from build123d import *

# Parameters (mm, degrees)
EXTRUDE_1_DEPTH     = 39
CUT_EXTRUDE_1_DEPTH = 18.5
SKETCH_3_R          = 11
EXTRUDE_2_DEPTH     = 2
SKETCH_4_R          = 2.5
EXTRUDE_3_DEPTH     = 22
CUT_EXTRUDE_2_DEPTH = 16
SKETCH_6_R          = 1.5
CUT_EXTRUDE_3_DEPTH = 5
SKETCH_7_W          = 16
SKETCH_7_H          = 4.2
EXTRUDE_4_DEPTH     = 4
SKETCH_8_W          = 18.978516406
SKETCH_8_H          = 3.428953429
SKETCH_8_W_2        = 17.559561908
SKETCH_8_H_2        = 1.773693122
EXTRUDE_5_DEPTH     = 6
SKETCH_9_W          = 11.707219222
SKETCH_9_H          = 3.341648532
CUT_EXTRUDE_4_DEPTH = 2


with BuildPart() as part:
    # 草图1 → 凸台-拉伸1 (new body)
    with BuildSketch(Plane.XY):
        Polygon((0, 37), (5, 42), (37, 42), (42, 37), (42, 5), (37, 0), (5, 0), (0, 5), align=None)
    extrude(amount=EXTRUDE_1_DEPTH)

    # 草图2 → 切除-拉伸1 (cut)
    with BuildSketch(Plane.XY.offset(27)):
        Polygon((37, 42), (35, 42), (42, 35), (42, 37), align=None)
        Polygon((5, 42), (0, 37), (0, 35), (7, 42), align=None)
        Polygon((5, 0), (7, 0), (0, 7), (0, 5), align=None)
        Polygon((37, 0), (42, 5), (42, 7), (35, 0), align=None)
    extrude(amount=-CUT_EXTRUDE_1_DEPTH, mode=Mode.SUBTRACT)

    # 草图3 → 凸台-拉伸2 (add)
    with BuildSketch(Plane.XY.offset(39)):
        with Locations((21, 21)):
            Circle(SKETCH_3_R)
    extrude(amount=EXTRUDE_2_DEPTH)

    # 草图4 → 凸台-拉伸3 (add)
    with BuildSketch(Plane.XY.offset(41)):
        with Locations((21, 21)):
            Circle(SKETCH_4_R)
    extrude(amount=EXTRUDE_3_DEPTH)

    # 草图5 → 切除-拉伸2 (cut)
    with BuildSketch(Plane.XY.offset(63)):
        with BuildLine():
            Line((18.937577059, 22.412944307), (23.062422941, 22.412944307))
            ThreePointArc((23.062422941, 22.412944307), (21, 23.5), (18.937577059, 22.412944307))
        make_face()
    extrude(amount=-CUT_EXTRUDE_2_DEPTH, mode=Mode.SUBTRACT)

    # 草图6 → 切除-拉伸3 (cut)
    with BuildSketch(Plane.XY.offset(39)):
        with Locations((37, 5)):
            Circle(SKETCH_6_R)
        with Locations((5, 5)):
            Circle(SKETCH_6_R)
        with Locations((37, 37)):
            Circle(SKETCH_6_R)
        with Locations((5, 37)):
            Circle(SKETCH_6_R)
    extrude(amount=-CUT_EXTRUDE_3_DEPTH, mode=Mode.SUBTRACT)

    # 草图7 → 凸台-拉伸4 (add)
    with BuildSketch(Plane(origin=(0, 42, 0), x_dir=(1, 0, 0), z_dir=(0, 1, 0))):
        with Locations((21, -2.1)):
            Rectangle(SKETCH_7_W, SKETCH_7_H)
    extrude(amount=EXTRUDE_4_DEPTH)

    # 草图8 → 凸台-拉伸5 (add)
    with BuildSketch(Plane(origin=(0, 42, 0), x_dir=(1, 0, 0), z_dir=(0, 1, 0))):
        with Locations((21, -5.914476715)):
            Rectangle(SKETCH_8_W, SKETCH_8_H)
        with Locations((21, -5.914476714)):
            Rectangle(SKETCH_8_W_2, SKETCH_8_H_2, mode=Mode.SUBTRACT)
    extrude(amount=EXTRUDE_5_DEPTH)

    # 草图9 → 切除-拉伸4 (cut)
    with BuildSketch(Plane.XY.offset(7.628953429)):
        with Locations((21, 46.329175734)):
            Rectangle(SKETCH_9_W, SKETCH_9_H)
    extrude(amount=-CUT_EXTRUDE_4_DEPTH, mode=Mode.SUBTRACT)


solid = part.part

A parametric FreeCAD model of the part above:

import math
import FreeCAD as App
import Part
import Sketcher

V = App.Vector
Q = App.Units.Quantity

doc = App.newDocument("Part")
params = doc.addObject("Spreadsheet::Sheet", "Params")
for row, (alias, value) in enumerate([
    ("sketch1_width", "32 mm"),
    ("pad1_length", "39 mm"),
    ("sketch2_width", "2 mm"),
    ("pocket1_length", "18.5 mm"),
    ("sketch3_diameter", "22 mm"),
    ("pad2_length", "2 mm"),
    ("sketch4_diameter", "5 mm"),
    ("pad3_length", "22 mm"),
    ("sketch5_radius", "2.5 mm"),
    ("pocket2_length", "16 mm"),
    ("sketch6_diameter", "3 mm"),
    ("pocket3_length", "5 mm"),
    ("sketch7_width", "16 mm"),
    ("sketch7_height", "4.2 mm"),
    ("pad4_length", "4 mm"),
    ("pad5_length", "6 mm"),
    ("pocket4_length", "2 mm"),
], start=1):
    params.set(f"A{row}", alias)
    params.set(f"B{row}", "=" + value)
    params.setAlias(f"B{row}", alias)

body = doc.addObject("PartDesign::Body", "Body")

sketch1 = body.newObject("Sketcher::SketchObject", "Sketch")
sketch1.AttachmentSupport = (doc.getObject("XY_Plane"), [""])
sketch1.MapMode = "FlatFace"
sketch1.addGeometry([
    Part.LineSegment(V(5, 42, 0), V(0, 37, 0)),
    Part.LineSegment(V(0, 37, 0), V(0, 5, 0)),
    Part.LineSegment(V(0, 5, 0), V(5, 0, 0)),
    Part.LineSegment(V(5, 0, 0), V(37, 0, 0)),
    Part.LineSegment(V(37, 0, 0), V(42, 5, 0)),
    Part.LineSegment(V(42, 5, 0), V(42, 37, 0)),
    Part.LineSegment(V(42, 37, 0), V(37, 42, 0)),
    Part.LineSegment(V(37, 42, 0), V(5, 42, 0)),
], False)
sketch1.addConstraint([
    Sketcher.Constraint("Coincident", 0, 2, 1, 1),
    Sketcher.Constraint("Coincident", 1, 2, 2, 1),
    Sketcher.Constraint("Coincident", 2, 2, 3, 1),
    Sketcher.Constraint("Coincident", 3, 2, 4, 1),
    Sketcher.Constraint("Coincident", 4, 2, 5, 1),
    Sketcher.Constraint("Coincident", 5, 2, 6, 1),
    Sketcher.Constraint("Coincident", 6, 2, 7, 1),
    Sketcher.Constraint("Coincident", 7, 2, 0, 1),
    Sketcher.Constraint("Vertical", 1),
    Sketcher.Constraint("Horizontal", 3),
    Sketcher.Constraint("Vertical", 5),
    Sketcher.Constraint("Horizontal", 7),
    Sketcher.Constraint("PointOnObject", 0, 2, -2),
    Sketcher.Constraint("PointOnObject", 2, 2, -1),
    Sketcher.Constraint("Perpendicular", 0, 2),
    Sketcher.Constraint("Perpendicular", 2, 4),
    Sketcher.Constraint("Perpendicular", 4, 6),
    Sketcher.Constraint("Horizontal", 1, 2, 4, 2),
    Sketcher.Constraint("Horizontal", 0, 2, 5, 2),
    Sketcher.Constraint("Vertical", 3, 2, 6, 2),
    Sketcher.Constraint("Vertical", 2, 2, 7, 2),
    Sketcher.Constraint("Equal", 7, 1),
    Sketcher.Constraint("DistanceX", 3, 1, 3, 2, Q("32 mm")),
    Sketcher.Constraint("DistanceY", -1, 1, 0, 2, Q("37 mm")),
])
sketch1.setExpression("Constraints[22]", "Params.sketch1_width")
pad1 = body.newObject("PartDesign::Pad", "Pad")
pad1.Profile = sketch1
pad1.setExpression("Length", "Params.pad1_length")

sketch2 = body.newObject("Sketcher::SketchObject", "Sketch001")
sketch2.AttachmentSupport = (doc.getObject("XY_Plane"), [""])
sketch2.MapMode = "FlatFace"
sketch2.AttachmentOffset = App.Placement(V(0, 0, 27), App.Rotation())
sketch2.addGeometry([
    Part.LineSegment(V(37, 42, 0), V(35, 42, 0)),
    Part.LineSegment(V(35, 42, 0), V(42, 35, 0)),
    Part.LineSegment(V(42, 35, 0), V(42, 37, 0)),
    Part.LineSegment(V(42, 37, 0), V(37, 42, 0)),
    Part.LineSegment(V(5, 42, 0), V(0, 37, 0)),
    Part.LineSegment(V(0, 37, 0), V(0, 35, 0)),
    Part.LineSegment(V(0, 35, 0), V(7, 42, 0)),
    Part.LineSegment(V(7, 42, 0), V(5, 42, 0)),
    Part.LineSegment(V(5, 0, 0), V(7, 0, 0)),
    Part.LineSegment(V(7, 0, 0), V(0, 7, 0)),
    Part.LineSegment(V(0, 7, 0), V(0, 5, 0)),
    Part.LineSegment(V(0, 5, 0), V(5, 0, 0)),
    Part.LineSegment(V(37, 0, 0), V(42, 5, 0)),
    Part.LineSegment(V(42, 5, 0), V(42, 7, 0)),
    Part.LineSegment(V(42, 7, 0), V(35, 0, 0)),
    Part.LineSegment(V(35, 0, 0), V(37, 0, 0)),
], False)
sketch2.addConstraint([
    Sketcher.Constraint("Coincident", 0, 2, 1, 1),
    Sketcher.Constraint("Coincident", 1, 2, 2, 1),
    Sketcher.Constraint("Coincident", 2, 2, 3, 1),
    Sketcher.Constraint("Coincident", 3, 2, 0, 1),
    Sketcher.Constraint("Coincident", 4, 2, 5, 1),
    Sketcher.Constraint("Coincident", 5, 2, 6, 1),
    Sketcher.Constraint("Coincident", 6, 2, 7, 1),
    Sketcher.Constraint("Coincident", 7, 2, 4, 1),
    Sketcher.Constraint("Coincident", 8, 2, 9, 1),
    Sketcher.Constraint("Coincident", 9, 2, 10, 1),
    Sketcher.Constraint("Coincident", 10, 2, 11, 1),
    Sketcher.Constraint("Coincident", 11, 2, 8, 1),
    Sketcher.Constraint("Coincident", 12, 2, 13, 1),
    Sketcher.Constraint("Coincident", 13, 2, 14, 1),
    Sketcher.Constraint("Coincident", 14, 2, 15, 1),
    Sketcher.Constraint("Coincident", 15, 2, 12, 1),
    Sketcher.Constraint("Horizontal", 0),
    Sketcher.Constraint("Vertical", 2),
    Sketcher.Constraint("Vertical", 5),
    Sketcher.Constraint("Horizontal", 7),
    Sketcher.Constraint("Horizontal", 8),
    Sketcher.Constraint("Vertical", 10),
    Sketcher.Constraint("Vertical", 13),
    Sketcher.Constraint("Horizontal", 15),
    Sketcher.Constraint("PointOnObject", 4, 2, -2),
    Sketcher.Constraint("PointOnObject", 8, 2, -1),
    Sketcher.Constraint("PointOnObject", 9, 2, -2),
    Sketcher.Constraint("PointOnObject", 14, 2, -1),
    Sketcher.Constraint("Parallel", 1, 3),
    Sketcher.Constraint("Perpendicular", 3, 4),
    Sketcher.Constraint("Parallel", 4, 6),
    Sketcher.Constraint("Perpendicular", 6, 9),
    Sketcher.Constraint("Parallel", 9, 11),
    Sketcher.Constraint("Perpendicular", 11, 12),
    Sketcher.Constraint("Parallel", 12, 14),
    Sketcher.Constraint("Horizontal", 2, 2, 4, 2),
    Sketcher.Constraint("Horizontal", 1, 2, 5, 2),
    Sketcher.Constraint("Horizontal", 3, 2, 6, 2),
    Sketcher.Constraint("Horizontal", 10, 2, 12, 2),
    Sketcher.Constraint("Horizontal", 9, 2, 13, 2),
    Sketcher.Constraint("Vertical", 6, 2, 8, 2),
    Sketcher.Constraint("Vertical", 7, 2, 11, 2),
    Sketcher.Constraint("Vertical", 2, 2, 12, 2),
    Sketcher.Constraint("Vertical", 0, 2, 14, 2),
    Sketcher.Constraint("DistanceX", 0, 2, 0, 1, Q("2 mm")),
    Sketcher.Constraint("DistanceX", -1, 1, 0, 2, Q("35 mm")),
    Sketcher.Constraint("DistanceY", -1, 1, 0, 2, Q("42 mm")),
    Sketcher.Constraint("DistanceX", -1, 1, 1, 2, Q("42 mm")),
])
sketch2.setExpression("Constraints[44]", "Params.sketch2_width")
pocket1 = body.newObject("PartDesign::Pocket", "Pocket")
pocket1.Profile = sketch2
pocket1.setExpression("Length", "Params.pocket1_length")

sketch3 = body.newObject("Sketcher::SketchObject", "Sketch002")
sketch3.AttachmentSupport = (doc.getObject("XY_Plane"), [""])
sketch3.MapMode = "FlatFace"
sketch3.AttachmentOffset = App.Placement(V(0, 0, 39), App.Rotation())
sketch3.addGeometry(Part.Circle(V(21, 21, 0), V(0, 0, 1), 11), False)
sketch3.addConstraint([
    Sketcher.Constraint("Diameter", 0, Q("22 mm")),
    Sketcher.Constraint("DistanceX", -1, 1, 0, 3, Q("21 mm")),
    Sketcher.Constraint("DistanceY", -1, 1, 0, 3, Q("21 mm")),
])
sketch3.setExpression("Constraints[0]", "Params.sketch3_diameter")
pad2 = body.newObject("PartDesign::Pad", "Pad001")
pad2.Profile = sketch3
pad2.setExpression("Length", "Params.pad2_length")

sketch4 = body.newObject("Sketcher::SketchObject", "Sketch003")
sketch4.AttachmentSupport = (doc.getObject("XY_Plane"), [""])
sketch4.MapMode = "FlatFace"
sketch4.AttachmentOffset = App.Placement(V(0, 0, 41), App.Rotation())
sketch4.addGeometry(Part.Circle(V(21, 21, 0), V(0, 0, 1), 2.5), False)
sketch4.addConstraint([
    Sketcher.Constraint("Diameter", 0, Q("5 mm")),
    Sketcher.Constraint("DistanceX", -1, 1, 0, 3, Q("21 mm")),
    Sketcher.Constraint("DistanceY", -1, 1, 0, 3, Q("21 mm")),
])
sketch4.setExpression("Constraints[0]", "Params.sketch4_diameter")
pad3 = body.newObject("PartDesign::Pad", "Pad002")
pad3.Profile = sketch4
pad3.setExpression("Length", "Params.pad3_length")

sketch5 = body.newObject("Sketcher::SketchObject", "Sketch004")
sketch5.AttachmentSupport = (doc.getObject("XY_Plane"), [""])
sketch5.MapMode = "FlatFace"
sketch5.AttachmentOffset = App.Placement(V(0, 0, 63), App.Rotation())
sketch5.addGeometry([
    Part.LineSegment(V(18.9, 22.4, 0), V(23.1, 22.4, 0)),
    Part.ArcOfCircle(Part.Circle(V(21, 21, 0), V(0, 0, 1), 2.5), math.radians(34), math.radians(146)),
], False)
sketch5.addConstraint([
    Sketcher.Constraint("Coincident", 0, 1, 1, 2),
    Sketcher.Constraint("Coincident", 1, 1, 0, 2),
    Sketcher.Constraint("Horizontal", 0),
    Sketcher.Constraint("Radius", 1, Q("2.5 mm")),
    Sketcher.Constraint("DistanceX", -1, 1, 1, 3, Q("21 mm")),
    Sketcher.Constraint("DistanceY", -1, 1, 1, 3, Q("21 mm")),
    Sketcher.Constraint("DistanceX", 0, 1, 0, 2, Q("4.124846 mm")),
])
sketch5.setExpression("Constraints[3]", "Params.sketch5_radius")
pocket2 = body.newObject("PartDesign::Pocket", "Pocket001")
pocket2.Profile = sketch5
pocket2.setExpression("Length", "Params.pocket2_length")

sketch6 = body.newObject("Sketcher::SketchObject", "Sketch005")
sketch6.AttachmentSupport = (doc.getObject("XY_Plane"), [""])
sketch6.MapMode = "FlatFace"
sketch6.AttachmentOffset = App.Placement(V(0, 0, 39), App.Rotation())
sketch6.addGeometry([
    Part.Circle(V(37, 5, 0), V(0, 0, 1), 1.5),
    Part.Circle(V(5, 5, 0), V(0, 0, 1), 1.5),
    Part.Circle(V(37, 37, 0), V(0, 0, 1), 1.5),
    Part.Circle(V(5, 37, 0), V(0, 0, 1), 1.5),
], False)
sketch6.addConstraint([
    Sketcher.Constraint("Equal", 0, 1),
    Sketcher.Constraint("Equal", 1, 2),
    Sketcher.Constraint("Equal", 2, 3),
    Sketcher.Constraint("Horizontal", 0, 3, 1, 3),
    Sketcher.Constraint("Horizontal", 2, 3, 3, 3),
    Sketcher.Constraint("Vertical", 0, 3, 2, 3),
    Sketcher.Constraint("Vertical", 1, 3, 3, 3),
    Sketcher.Constraint("Diameter", 0, Q("3 mm")),
    Sketcher.Constraint("DistanceX", -1, 1, 0, 3, Q("37 mm")),
    Sketcher.Constraint("DistanceY", -1, 1, 0, 3, Q("5 mm")),
    Sketcher.Constraint("DistanceX", -1, 1, 1, 3, Q("5 mm")),
    Sketcher.Constraint("DistanceY", -1, 1, 2, 3, Q("37 mm")),
])
sketch6.setExpression("Constraints[7]", "Params.sketch6_diameter")
pocket3 = body.newObject("PartDesign::Pocket", "Pocket002")
pocket3.Profile = sketch6
pocket3.setExpression("Length", "Params.pocket3_length")

sketch7 = body.newObject("Sketcher::SketchObject", "Sketch006")
sketch7.AttachmentSupport = (doc.getObject("XZ_Plane"), [""])
sketch7.MapMode = "FlatFace"
sketch7.AttachmentOffset = App.Placement(V(0, 0, -42), App.Rotation())
sketch7.addGeometry([
    Part.LineSegment(V(13, 0, 0), V(13, 4.2, 0)),
    Part.LineSegment(V(13, 4.2, 0), V(29, 4.2, 0)),
    Part.LineSegment(V(29, 4.2, 0), V(29, 0, 0)),
    Part.LineSegment(V(29, 0, 0), V(13, 0, 0)),
], False)
sketch7.addConstraint([
    Sketcher.Constraint("Coincident", 0, 2, 1, 1),
    Sketcher.Constraint("Coincident", 1, 2, 2, 1),
    Sketcher.Constraint("Coincident", 2, 2, 3, 1),
    Sketcher.Constraint("Coincident", 3, 2, 0, 1),
    Sketcher.Constraint("Vertical", 0),
    Sketcher.Constraint("Horizontal", 1),
    Sketcher.Constraint("Vertical", 2),
    Sketcher.Constraint("Horizontal", 3),
    Sketcher.Constraint("PointOnObject", 2, 2, -1),
    Sketcher.Constraint("DistanceX", 1, 1, 1, 2, Q("16 mm")),
    Sketcher.Constraint("DistanceY", 0, 1, 0, 2, Q("4.2 mm")),
    Sketcher.Constraint("DistanceX", -1, 1, 0, 2, Q("13 mm")),
])
sketch7.setExpression("Constraints[9]", "Params.sketch7_width")
sketch7.setExpression("Constraints[10]", "Params.sketch7_height")
pad4 = body.newObject("PartDesign::Pad", "Pad003")
pad4.Profile = sketch7
pad4.setExpression("Length", "Params.pad4_length")
pad4.Reversed = True

sketch8 = body.newObject("Sketcher::SketchObject", "Sketch007")
sketch8.AttachmentSupport = (doc.getObject("XZ_Plane"), [""])
sketch8.MapMode = "FlatFace"
sketch8.AttachmentOffset = App.Placement(V(0, 0, -42), App.Rotation())
sketch8.addGeometry([
    Part.LineSegment(V(11.5, 4.2, 0), V(11.5, 7.6, 0)),
    Part.LineSegment(V(11.5, 7.6, 0), V(30.5, 7.6, 0)),
    Part.LineSegment(V(30.5, 7.6, 0), V(30.5, 4.2, 0)),
    Part.LineSegment(V(30.5, 4.2, 0), V(11.5, 4.2, 0)),
    Part.LineSegment(V(29.8, 6.8, 0), V(12.2, 6.8, 0)),
    Part.LineSegment(V(12.2, 6.8, 0), V(12.2, 5, 0)),
    Part.LineSegment(V(12.2, 5, 0), V(29.8, 5, 0)),
    Part.LineSegment(V(29.8, 5, 0), V(29.8, 6.8, 0)),
], False)
sketch8.addConstraint([
    Sketcher.Constraint("Coincident", 0, 2, 1, 1),
    Sketcher.Constraint("Coincident", 1, 2, 2, 1),
    Sketcher.Constraint("Coincident", 2, 2, 3, 1),
    Sketcher.Constraint("Coincident", 3, 2, 0, 1),
    Sketcher.Constraint("Coincident", 4, 2, 5, 1),
    Sketcher.Constraint("Coincident", 5, 2, 6, 1),
    Sketcher.Constraint("Coincident", 6, 2, 7, 1),
    Sketcher.Constraint("Coincident", 7, 2, 4, 1),
    Sketcher.Constraint("Vertical", 0),
    Sketcher.Constraint("Horizontal", 1),
    Sketcher.Constraint("Vertical", 2),
    Sketcher.Constraint("Horizontal", 3),
    Sketcher.Constraint("Horizontal", 4),
    Sketcher.Constraint("Vertical", 5),
    Sketcher.Constraint("Horizontal", 6),
    Sketcher.Constraint("Vertical", 7),
    Sketcher.Constraint("DistanceY", -1, 1, 2, 2, Q("4.2 mm")),
    Sketcher.Constraint("DistanceX", 4, 2, 4, 1, Q("17.559562 mm")),
    Sketcher.Constraint("DistanceX", 1, 1, 1, 2, Q("18.978516 mm")),
    Sketcher.Constraint("DistanceY", 0, 1, 0, 2, Q("3.428953 mm")),
    Sketcher.Constraint("DistanceY", 5, 2, 5, 1, Q("1.773693 mm")),
    Sketcher.Constraint("DistanceX", -1, 1, 0, 2, Q("11.510742 mm")),
    Sketcher.Constraint("DistanceX", -1, 1, 4, 2, Q("12.220219 mm")),
    Sketcher.Constraint("DistanceY", -1, 1, 5, 2, Q("5.02763 mm")),
])
pad5 = body.newObject("PartDesign::Pad", "Pad004")
pad5.Profile = sketch8
pad5.setExpression("Length", "Params.pad5_length")
pad5.Reversed = True

sketch9 = body.newObject("Sketcher::SketchObject", "Sketch008")
sketch9.AttachmentSupport = (doc.getObject("XY_Plane"), [""])
sketch9.MapMode = "FlatFace"
sketch9.AttachmentOffset = App.Placement(V(0, 0, 7.628953), App.Rotation())
sketch9.addGeometry([
    Part.LineSegment(V(15.1, 48, 0), V(15.1, 44.7, 0)),
    Part.LineSegment(V(15.1, 44.7, 0), V(26.9, 44.7, 0)),
    Part.LineSegment(V(26.9, 44.7, 0), V(26.9, 48, 0)),
    Part.LineSegment(V(26.9, 48, 0), V(15.1, 48, 0)),
], False)
sketch9.addConstraint([
    Sketcher.Constraint("Coincident", 0, 2, 1, 1),
    Sketcher.Constraint("Coincident", 1, 2, 2, 1),
    Sketcher.Constraint("Coincident", 2, 2, 3, 1),
    Sketcher.Constraint("Coincident", 3, 2, 0, 1),
    Sketcher.Constraint("Vertical", 0),
    Sketcher.Constraint("Horizontal", 1),
    Sketcher.Constraint("Vertical", 2),
    Sketcher.Constraint("Horizontal", 3),
    Sketcher.Constraint("DistanceY", -1, 1, 2, 2, Q("48 mm")),
    Sketcher.Constraint("DistanceX", 1, 1, 1, 2, Q("11.707219 mm")),
    Sketcher.Constraint("DistanceY", 0, 2, 0, 1, Q("3.341649 mm")),
    Sketcher.Constraint("DistanceX", -1, 1, 0, 2, Q("15.14639 mm")),
])
pocket4 = body.newObject("PartDesign::Pocket", "Pocket003")
pocket4.Profile = sketch9
pocket4.setExpression("Length", "Params.pocket4_length")

doc.recompute()
